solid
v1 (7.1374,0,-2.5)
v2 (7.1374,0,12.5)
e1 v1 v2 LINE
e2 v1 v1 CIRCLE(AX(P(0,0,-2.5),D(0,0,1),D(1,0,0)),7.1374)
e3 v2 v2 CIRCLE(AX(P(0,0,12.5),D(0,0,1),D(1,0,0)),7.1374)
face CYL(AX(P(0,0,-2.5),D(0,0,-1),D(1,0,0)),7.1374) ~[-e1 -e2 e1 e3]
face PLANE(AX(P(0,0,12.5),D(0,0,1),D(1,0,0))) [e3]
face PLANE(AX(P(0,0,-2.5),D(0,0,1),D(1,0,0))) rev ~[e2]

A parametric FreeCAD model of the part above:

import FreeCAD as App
import Part
import Sketcher
Q = App.Units.Quantity

doc = App.newDocument("Part")
body = doc.addObject("PartDesign::Body", "Body")

sketch1 = doc.addObject("Sketcher::SketchObject", "Sketch")
body.addObject(sketch1)
sketch1.AttachmentSupport = (doc.XY_Plane, [""])
sketch1.MapMode = "FlatFace"
sketch1.AttachmentOffset = App.Placement(App.Vector(0, 0, -2.5), App.Rotation())
sketch1.addGeometry(Part.Circle(App.Vector(0, 0, 0), App.Vector(0, 0, 1), 7), False)
sketch1.addConstraint([
    Sketcher.Constraint("Coincident", 0, 3, -1, 1),
    Sketcher.Constraint("Diameter", 0, Q("14.2748 mm")),
])
pad1 = doc.addObject("PartDesign::Pad", "Pad")
body.addObject(pad1)
pad1.Profile = sketch1
pad1.Length = 15

doc.recompute()
